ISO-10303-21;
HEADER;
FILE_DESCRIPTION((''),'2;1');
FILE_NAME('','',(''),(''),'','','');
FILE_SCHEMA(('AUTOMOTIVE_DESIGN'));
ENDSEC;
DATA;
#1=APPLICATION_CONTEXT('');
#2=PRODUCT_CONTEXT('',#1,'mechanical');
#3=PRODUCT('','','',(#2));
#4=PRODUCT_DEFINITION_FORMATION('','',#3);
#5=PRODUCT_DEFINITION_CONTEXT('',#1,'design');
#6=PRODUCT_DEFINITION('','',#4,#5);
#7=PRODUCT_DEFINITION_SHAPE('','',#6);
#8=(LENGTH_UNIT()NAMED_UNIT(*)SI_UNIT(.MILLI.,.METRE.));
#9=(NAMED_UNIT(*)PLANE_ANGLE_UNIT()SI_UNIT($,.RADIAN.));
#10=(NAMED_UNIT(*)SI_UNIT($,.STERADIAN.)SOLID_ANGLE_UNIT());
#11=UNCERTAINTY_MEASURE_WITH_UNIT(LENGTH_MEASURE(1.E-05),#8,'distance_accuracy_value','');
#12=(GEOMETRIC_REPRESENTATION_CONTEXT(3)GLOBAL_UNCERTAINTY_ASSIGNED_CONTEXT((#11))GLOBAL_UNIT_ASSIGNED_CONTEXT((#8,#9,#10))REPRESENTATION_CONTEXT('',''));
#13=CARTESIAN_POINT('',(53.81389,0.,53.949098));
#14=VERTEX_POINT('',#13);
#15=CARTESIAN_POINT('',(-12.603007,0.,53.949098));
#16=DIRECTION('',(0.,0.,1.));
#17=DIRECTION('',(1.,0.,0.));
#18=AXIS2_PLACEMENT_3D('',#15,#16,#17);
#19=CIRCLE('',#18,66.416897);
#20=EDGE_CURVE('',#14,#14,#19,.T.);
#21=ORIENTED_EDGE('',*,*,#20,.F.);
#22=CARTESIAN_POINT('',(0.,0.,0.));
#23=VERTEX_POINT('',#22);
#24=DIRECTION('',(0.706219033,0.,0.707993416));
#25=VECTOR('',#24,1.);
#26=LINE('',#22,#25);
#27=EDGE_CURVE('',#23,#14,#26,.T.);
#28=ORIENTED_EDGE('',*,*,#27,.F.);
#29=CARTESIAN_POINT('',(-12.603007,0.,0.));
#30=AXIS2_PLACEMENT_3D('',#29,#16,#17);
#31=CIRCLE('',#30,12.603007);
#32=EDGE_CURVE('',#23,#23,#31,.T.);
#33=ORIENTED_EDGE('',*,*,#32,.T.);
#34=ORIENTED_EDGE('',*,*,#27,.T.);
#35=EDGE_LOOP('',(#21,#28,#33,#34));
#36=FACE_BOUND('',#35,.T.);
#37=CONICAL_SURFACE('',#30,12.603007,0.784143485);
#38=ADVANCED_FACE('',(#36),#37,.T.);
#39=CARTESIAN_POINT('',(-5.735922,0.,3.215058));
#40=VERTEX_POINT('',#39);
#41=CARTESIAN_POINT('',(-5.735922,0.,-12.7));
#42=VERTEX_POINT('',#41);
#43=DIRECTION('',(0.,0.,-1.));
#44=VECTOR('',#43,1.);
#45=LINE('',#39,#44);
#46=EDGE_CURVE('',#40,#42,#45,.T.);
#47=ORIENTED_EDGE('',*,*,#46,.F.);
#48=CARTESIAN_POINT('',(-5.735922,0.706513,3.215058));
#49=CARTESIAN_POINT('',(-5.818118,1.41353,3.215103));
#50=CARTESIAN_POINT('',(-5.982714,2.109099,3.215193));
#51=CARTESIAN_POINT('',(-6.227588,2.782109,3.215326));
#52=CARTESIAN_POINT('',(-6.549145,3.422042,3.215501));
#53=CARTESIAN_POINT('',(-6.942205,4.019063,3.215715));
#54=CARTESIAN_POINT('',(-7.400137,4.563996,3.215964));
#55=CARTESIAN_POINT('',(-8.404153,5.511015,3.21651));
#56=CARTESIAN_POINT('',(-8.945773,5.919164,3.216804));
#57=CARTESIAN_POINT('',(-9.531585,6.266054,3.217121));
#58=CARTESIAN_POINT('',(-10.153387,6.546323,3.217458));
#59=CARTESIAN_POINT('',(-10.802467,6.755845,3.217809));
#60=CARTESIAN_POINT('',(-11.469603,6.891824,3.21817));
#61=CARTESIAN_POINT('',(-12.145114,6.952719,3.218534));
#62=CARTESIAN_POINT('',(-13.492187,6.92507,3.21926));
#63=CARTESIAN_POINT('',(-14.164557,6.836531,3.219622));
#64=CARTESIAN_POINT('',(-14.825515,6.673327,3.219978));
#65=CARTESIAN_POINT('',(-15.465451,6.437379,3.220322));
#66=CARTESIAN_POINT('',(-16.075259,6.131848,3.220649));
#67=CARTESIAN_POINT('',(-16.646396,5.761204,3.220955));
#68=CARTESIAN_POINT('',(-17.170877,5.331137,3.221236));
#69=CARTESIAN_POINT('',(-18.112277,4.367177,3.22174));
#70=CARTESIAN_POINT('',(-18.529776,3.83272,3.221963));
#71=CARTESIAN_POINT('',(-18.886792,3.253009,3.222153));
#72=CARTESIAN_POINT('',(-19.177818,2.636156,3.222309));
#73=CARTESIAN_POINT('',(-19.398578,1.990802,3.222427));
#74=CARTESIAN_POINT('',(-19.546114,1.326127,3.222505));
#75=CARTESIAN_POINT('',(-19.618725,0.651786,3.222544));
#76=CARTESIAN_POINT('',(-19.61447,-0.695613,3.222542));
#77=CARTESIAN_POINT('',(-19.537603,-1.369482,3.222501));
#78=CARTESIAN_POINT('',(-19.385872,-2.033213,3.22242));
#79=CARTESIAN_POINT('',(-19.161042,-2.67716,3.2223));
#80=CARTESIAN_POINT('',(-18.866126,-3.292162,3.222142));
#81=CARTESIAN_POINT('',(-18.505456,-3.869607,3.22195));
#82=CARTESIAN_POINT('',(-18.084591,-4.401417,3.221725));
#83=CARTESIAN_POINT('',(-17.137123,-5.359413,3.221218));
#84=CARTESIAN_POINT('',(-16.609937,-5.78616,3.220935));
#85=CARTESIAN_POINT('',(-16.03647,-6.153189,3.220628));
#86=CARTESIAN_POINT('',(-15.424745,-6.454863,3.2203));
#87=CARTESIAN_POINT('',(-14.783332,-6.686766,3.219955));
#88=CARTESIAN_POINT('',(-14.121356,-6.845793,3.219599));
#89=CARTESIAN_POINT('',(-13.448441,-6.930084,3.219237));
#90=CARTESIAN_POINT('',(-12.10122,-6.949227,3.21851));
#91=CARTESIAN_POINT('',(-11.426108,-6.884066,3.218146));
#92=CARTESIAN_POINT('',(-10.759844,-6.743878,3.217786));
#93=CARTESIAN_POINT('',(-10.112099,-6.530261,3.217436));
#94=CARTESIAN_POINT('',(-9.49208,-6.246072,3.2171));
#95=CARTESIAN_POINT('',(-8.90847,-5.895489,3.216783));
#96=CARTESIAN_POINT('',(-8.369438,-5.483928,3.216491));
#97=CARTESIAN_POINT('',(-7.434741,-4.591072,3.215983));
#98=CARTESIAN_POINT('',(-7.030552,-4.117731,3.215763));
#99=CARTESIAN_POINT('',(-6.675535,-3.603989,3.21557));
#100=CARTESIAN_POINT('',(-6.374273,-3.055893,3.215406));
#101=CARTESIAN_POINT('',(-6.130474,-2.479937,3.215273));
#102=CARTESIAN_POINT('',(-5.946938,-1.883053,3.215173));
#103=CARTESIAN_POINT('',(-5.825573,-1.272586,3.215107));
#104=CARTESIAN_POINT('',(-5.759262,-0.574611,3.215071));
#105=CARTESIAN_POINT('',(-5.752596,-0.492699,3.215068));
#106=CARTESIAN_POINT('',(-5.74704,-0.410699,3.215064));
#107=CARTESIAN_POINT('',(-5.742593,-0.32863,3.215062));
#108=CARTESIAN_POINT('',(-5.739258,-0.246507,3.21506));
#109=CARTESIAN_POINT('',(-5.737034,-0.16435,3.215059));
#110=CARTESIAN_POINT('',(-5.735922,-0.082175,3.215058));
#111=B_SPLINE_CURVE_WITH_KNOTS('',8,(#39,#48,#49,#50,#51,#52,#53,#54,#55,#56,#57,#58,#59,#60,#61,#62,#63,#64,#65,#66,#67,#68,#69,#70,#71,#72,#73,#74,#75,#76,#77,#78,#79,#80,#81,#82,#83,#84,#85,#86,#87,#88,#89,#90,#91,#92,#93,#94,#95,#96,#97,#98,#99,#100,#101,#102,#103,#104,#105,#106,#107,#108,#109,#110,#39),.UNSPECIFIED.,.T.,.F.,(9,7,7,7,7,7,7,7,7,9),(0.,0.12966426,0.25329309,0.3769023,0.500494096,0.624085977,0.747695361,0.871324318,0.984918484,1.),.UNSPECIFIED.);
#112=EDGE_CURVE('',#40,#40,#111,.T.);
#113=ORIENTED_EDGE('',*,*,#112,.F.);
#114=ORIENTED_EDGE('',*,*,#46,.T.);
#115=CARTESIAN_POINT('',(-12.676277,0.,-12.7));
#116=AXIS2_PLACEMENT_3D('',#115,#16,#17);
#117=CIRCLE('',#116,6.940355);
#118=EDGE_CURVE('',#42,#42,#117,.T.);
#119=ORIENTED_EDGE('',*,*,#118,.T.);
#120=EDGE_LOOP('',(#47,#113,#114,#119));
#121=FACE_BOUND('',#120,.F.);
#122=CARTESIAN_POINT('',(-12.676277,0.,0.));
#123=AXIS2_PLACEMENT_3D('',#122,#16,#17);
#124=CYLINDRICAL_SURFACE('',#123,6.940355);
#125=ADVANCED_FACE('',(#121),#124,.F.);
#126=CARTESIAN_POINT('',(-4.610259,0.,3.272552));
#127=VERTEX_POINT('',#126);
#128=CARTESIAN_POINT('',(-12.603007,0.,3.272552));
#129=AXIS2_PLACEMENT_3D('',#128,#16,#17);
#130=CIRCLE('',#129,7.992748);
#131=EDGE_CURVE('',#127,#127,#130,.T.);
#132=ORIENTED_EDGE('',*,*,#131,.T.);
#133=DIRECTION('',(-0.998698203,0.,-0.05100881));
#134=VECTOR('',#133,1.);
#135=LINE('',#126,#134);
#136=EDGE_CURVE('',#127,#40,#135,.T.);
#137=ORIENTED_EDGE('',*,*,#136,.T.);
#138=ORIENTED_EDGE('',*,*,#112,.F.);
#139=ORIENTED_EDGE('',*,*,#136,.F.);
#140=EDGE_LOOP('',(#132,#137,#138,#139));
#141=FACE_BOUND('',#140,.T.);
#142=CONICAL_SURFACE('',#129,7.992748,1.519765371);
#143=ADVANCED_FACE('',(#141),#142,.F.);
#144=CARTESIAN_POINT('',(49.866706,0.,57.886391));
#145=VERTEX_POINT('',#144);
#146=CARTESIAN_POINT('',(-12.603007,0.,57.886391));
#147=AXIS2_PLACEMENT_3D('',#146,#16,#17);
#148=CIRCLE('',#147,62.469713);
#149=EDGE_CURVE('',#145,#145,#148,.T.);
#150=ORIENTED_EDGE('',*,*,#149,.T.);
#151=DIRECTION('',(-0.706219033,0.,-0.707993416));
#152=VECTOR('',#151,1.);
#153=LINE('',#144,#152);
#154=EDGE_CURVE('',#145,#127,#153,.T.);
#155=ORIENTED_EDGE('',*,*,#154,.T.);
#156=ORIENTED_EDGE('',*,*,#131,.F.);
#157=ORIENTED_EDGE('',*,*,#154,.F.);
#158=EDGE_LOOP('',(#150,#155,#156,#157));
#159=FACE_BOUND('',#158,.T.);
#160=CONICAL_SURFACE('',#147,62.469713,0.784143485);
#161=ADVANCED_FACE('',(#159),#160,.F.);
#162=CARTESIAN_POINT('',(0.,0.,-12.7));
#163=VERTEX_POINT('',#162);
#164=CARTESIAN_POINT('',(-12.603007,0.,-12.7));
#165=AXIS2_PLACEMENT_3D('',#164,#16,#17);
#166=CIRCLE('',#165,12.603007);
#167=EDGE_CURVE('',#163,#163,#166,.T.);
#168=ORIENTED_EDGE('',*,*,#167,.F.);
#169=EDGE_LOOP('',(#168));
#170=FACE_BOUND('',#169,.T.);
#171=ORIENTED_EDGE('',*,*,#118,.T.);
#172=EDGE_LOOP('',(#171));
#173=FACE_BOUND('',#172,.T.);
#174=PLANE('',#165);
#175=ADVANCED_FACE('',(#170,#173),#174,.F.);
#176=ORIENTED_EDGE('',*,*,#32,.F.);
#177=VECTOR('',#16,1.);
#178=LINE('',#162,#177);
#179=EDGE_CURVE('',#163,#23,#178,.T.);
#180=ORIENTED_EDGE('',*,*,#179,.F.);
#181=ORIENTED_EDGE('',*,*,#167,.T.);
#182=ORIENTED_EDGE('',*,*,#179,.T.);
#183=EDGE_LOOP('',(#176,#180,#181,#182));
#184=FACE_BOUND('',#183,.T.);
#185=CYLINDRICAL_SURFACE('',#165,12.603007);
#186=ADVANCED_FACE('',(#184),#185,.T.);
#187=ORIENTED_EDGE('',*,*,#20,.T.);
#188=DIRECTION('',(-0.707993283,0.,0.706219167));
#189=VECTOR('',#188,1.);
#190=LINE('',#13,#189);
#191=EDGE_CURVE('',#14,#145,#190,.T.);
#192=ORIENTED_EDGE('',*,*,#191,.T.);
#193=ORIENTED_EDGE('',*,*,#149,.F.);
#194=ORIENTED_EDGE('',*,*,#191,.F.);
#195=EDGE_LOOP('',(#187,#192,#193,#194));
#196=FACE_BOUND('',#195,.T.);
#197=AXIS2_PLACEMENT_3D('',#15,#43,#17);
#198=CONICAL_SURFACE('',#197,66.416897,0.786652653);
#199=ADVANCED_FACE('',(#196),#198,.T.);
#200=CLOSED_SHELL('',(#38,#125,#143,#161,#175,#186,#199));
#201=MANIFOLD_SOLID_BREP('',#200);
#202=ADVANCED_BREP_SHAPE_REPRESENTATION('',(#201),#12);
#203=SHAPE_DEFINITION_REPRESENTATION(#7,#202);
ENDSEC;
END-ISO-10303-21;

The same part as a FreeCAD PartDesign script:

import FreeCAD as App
import Part
import Sketcher
Q = App.Units.Quantity

doc = App.newDocument("Part")
body = doc.addObject("PartDesign::Body", "Body")

sketch1 = body.newObject("Sketcher::SketchObject", "Sketch")
sketch1.AttachmentSupport = (doc.getObject("XZ_Plane"), [""])
sketch1.MapMode = "FlatFace"
sketch1.addGeometry(Part.LineSegment(App.Vector(0, -13, 0), App.Vector(0, 0, 0)), False)
sketch1.addGeometry(Part.LineSegment(App.Vector(0, 0, 0), App.Vector(54, 54, 0)), False)
sketch1.addGeometry(Part.LineSegment(App.Vector(54, 54, 0), App.Vector(50, 58, 0)), False)
sketch1.addGeometry(Part.LineSegment(App.Vector(50, 58, 0), App.Vector(-5, 3, 0)), False)
sketch1.addGeometry(Part.LineSegment(App.Vector(-5, 3, 0), App.Vector(-13, 3, 0)), False)
sketch1.addGeometry(Part.LineSegment(App.Vector(-13, 3, 0), App.Vector(-13, -13, 0)), False)
sketch1.addGeometry(Part.LineSegment(App.Vector(-13, -13, 0), App.Vector(0, -13, 0)), False)
sketch1.addGeometry(Part.LineSegment(App.Vector(-13, -13, 0), App.Vector(-13, 58, 0)), True)
sketch1.addConstraint(Sketcher.Constraint("Coincident", 0, 2, 1, 1))
sketch1.addConstraint(Sketcher.Constraint("Coincident", 1, 2, 2, 1))
sketch1.addConstraint(Sketcher.Constraint("Coincident", 2, 2, 3, 1))
sketch1.addConstraint(Sketcher.Constraint("Coincident", 3, 2, 4, 1))
sketch1.addConstraint(Sketcher.Constraint("Coincident", 4, 2, 5, 1))
sketch1.addConstraint(Sketcher.Constraint("Coincident", 5, 2, 6, 1))
sketch1.addConstraint(Sketcher.Constraint("Coincident", 6, 2, 0, 1))
sketch1.addConstraint(Sketcher.Constraint("Vertical", 0))
sketch1.addConstraint(Sketcher.Constraint("Vertical", 5))
sketch1.addConstraint(Sketcher.Constraint("Horizontal", 6))
sketch1.addConstraint(Sketcher.Constraint("Vertical", 7))
sketch1.addConstraint(Sketcher.Constraint("Coincident", 0, 2, -1, 1))
sketch1.addConstraint(Sketcher.Constraint("Coincident", 7, 1, 5, 2))
sketch1.addConstraint(Sketcher.Constraint("Perpendicular", 1, 2))
sketch1.addConstraint(Sketcher.Constraint("Perpendicular", 2, 3))
sketch1.addConstraint(Sketcher.Constraint("Horizontal", 2, 2, 7, 2))
sketch1.addConstraint(Sketcher.Constraint("Distance", 1, Q("3 in")))
sketch1.addConstraint(Sketcher.Constraint("DistanceY", 0, 1, 0, 2, Q("0.5 in")))
sketch1.addConstraint(Sketcher.Constraint("DistanceY", 5, 2, 5, 1, Q("15.56432 mm")))
sketch1.addConstraint(Sketcher.Constraint("DistanceY", 7, 1, 7, 2, Q("70.586391 mm")))
sketch1.addConstraint(Sketcher.Constraint("Distance", 2, Q("5.575172 mm")))
sketch1.addConstraint(Sketcher.Constraint("DistanceX", 6, 1, 6, 2, Q("12.603007 mm")))
sketch1.addConstraint(Sketcher.Constraint("DistanceX", 3, 2, -1, 1, Q("4.610259 mm")))
revolution = body.newObject("PartDesign::Revolution", "Revolution")
revolution.Profile = sketch1
revolution.ReferenceAxis = (sketch1, ["Axis0"])
revolution.Angle = 360

sketch2 = body.newObject("Sketcher::SketchObject", "Sketch001")
sketch2.AttachmentSupport = (doc.getObject("XY_Plane"), [""])
sketch2.MapMode = "FlatFace"
sketch2.addGeometry(Part.Circle(App.Vector(-13, 0, 0), App.Vector(0, 0, 1), 7), False)
sketch2.addConstraint(Sketcher.Constraint("PointOnObject", 0, 3, -1))
sketch2.addConstraint(Sketcher.Constraint("Diameter", 0, Q("13.88071 mm")))
sketch2.addConstraint(Sketcher.Constraint("DistanceX", 0, 3, -1, 1, Q("12.676277 mm")))
pocket1 = body.newObject("PartDesign::Pocket", "Pocket")
pocket1.Profile = sketch2
pocket1.Length = Q("11 in")

sketch3 = body.newObject("Sketcher::SketchObject", "Sketch002")
sketch3.AttachmentSupport = (doc.getObject("XY_Plane"), [""])
sketch3.MapMode = "FlatFace"
sketch3.addGeometry(Part.Circle(App.Vector(-13, 0, 0), App.Vector(0, 0, 1), 7), False)
sketch3.addConstraint(Sketcher.Constraint("PointOnObject", 0, 3, -1))
sketch3.addConstraint(Sketcher.Constraint("Diameter", 0, Q("13.88071 mm")))
sketch3.addConstraint(Sketcher.Constraint("DistanceX", 0, 3, -1, 1, Q("12.676277 mm")))
pocket2 = body.newObject("PartDesign::Pocket", "Pocket001")
pocket2.Profile = sketch3
pocket2.Length = Q("1 in")
pocket2.Reversed = True

doc.recompute()
